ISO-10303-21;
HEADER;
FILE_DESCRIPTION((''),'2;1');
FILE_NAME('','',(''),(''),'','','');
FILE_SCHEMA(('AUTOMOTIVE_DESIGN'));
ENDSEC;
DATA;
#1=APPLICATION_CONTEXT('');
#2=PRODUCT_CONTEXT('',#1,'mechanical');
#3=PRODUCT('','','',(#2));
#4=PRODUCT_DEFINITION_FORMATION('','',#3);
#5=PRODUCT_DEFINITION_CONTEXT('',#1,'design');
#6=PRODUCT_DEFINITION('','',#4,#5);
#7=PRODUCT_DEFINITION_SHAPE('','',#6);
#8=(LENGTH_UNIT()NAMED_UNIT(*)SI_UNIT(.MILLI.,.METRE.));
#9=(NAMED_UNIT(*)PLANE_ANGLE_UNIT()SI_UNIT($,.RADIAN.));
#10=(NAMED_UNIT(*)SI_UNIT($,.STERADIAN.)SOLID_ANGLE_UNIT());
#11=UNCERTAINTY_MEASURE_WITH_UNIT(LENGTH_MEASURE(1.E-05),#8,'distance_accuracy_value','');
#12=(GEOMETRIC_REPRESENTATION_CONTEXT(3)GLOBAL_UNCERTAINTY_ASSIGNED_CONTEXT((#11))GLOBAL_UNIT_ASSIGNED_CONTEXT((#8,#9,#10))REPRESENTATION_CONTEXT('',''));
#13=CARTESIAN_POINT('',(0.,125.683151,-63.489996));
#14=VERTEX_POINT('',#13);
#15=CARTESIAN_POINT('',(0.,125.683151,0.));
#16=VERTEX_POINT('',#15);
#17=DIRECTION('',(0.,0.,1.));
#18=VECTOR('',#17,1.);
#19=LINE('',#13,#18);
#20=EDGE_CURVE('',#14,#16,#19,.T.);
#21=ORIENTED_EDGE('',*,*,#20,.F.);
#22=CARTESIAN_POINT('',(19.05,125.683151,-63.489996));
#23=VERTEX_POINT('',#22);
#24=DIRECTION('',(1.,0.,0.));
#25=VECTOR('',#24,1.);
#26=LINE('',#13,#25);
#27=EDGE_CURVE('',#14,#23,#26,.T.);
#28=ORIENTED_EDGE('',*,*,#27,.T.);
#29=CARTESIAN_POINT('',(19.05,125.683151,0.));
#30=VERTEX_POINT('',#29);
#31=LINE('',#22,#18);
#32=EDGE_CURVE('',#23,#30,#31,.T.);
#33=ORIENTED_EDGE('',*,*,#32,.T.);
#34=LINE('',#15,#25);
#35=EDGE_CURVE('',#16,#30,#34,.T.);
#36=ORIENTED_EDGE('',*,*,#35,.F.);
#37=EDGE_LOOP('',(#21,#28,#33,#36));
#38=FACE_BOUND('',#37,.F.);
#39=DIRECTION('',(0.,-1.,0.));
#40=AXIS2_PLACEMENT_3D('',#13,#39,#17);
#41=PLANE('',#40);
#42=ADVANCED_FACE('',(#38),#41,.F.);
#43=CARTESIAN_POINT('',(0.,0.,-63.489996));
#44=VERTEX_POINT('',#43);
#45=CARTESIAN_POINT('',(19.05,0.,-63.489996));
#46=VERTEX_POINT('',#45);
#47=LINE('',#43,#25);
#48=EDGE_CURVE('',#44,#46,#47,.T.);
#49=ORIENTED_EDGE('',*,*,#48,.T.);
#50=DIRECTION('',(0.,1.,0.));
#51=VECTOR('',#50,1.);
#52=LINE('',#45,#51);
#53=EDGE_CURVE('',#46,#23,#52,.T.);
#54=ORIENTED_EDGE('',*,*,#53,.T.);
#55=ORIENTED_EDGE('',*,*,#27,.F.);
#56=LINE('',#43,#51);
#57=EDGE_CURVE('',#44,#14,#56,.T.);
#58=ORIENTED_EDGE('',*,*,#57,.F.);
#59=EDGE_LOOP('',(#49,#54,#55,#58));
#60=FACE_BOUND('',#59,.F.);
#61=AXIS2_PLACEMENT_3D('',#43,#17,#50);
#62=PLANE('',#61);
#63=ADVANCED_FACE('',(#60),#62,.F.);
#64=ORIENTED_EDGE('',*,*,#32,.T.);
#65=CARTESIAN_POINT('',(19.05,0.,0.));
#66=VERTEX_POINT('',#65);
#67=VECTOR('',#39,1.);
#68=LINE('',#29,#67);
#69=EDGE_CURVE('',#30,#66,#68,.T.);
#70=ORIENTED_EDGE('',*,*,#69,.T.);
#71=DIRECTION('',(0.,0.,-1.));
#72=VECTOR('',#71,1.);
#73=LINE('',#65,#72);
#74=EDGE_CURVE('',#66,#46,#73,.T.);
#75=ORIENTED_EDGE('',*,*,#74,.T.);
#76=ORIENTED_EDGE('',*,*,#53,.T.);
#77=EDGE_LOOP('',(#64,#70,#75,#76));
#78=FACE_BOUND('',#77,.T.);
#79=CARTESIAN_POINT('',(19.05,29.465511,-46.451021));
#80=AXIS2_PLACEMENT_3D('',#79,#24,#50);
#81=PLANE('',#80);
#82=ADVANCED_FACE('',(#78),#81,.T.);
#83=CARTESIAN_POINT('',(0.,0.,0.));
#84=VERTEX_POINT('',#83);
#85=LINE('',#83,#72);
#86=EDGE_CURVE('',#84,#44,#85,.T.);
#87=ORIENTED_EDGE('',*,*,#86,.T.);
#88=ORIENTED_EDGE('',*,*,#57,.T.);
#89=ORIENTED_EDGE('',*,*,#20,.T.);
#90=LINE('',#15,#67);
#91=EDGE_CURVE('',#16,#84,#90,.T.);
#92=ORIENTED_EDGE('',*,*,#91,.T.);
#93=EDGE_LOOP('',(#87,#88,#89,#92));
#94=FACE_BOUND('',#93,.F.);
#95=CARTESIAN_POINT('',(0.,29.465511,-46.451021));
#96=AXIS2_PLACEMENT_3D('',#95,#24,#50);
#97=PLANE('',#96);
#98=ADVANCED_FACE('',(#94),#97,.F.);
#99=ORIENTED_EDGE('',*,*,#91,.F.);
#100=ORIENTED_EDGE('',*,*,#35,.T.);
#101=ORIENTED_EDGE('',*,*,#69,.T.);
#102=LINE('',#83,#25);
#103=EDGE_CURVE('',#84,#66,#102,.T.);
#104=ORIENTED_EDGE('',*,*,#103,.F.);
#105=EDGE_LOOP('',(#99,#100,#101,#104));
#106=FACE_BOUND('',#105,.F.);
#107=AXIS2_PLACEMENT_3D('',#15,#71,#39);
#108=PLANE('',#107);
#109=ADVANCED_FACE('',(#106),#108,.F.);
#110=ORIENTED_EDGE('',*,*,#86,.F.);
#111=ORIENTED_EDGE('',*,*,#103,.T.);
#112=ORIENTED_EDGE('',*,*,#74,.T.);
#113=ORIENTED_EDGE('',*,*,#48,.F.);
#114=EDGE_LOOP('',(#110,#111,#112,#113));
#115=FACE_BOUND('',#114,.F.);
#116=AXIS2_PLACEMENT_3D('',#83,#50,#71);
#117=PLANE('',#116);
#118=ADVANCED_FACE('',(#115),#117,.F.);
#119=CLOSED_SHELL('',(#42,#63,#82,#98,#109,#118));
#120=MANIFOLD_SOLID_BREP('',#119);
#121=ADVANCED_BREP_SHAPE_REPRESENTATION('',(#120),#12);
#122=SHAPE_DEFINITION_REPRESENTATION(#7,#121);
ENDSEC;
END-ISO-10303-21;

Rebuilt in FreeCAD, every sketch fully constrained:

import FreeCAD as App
import Part
import Sketcher

V = App.Vector
Q = App.Units.Quantity

doc = App.newDocument("Part")
body = doc.addObject("PartDesign::Body", "Body")

sketch1 = doc.addObject("Sketcher::SketchObject", "Sketch")
body.addObject(sketch1)
sketch1.AttachmentSupport = (doc.YZ_Plane, [""])
sketch1.MapMode = "FlatFace"
sketch1.addGeometry([
    Part.LineSegment(V(0, -63, 0), V(126, -63, 0)),
    Part.LineSegment(V(126, -63, 0), V(126, 0, 0)),
    Part.LineSegment(V(126, 0, 0), V(0, 0, 0)),
    Part.LineSegment(V(0, 0, 0), V(0, -63, 0)),
], False)
sketch1.addConstraint([
    Sketcher.Constraint("Coincident", 0, 2, 1, 1),
    Sketcher.Constraint("Coincident", 1, 2, 2, 1),
    Sketcher.Constraint("Coincident", 2, 2, 3, 1),
    Sketcher.Constraint("Coincident", 3, 2, 0, 1),
    Sketcher.Constraint("Horizontal", 0),
    Sketcher.Constraint("Vertical", 1),
    Sketcher.Constraint("Horizontal", 2),
    Sketcher.Constraint("Vertical", 3),
    Sketcher.Constraint("Coincident", 2, 2, -1, 1),
    Sketcher.Constraint("DistanceX", 0, 1, 0, 2, 125.683151),
    Sketcher.Constraint("DistanceY", 1, 1, 1, 2, 63.489996),
])
pad1 = doc.addObject("PartDesign::Pad", "Pad")
body.addObject(pad1)
pad1.Profile = sketch1
pad1.Length = Q("0.75 in")

doc.recompute()
